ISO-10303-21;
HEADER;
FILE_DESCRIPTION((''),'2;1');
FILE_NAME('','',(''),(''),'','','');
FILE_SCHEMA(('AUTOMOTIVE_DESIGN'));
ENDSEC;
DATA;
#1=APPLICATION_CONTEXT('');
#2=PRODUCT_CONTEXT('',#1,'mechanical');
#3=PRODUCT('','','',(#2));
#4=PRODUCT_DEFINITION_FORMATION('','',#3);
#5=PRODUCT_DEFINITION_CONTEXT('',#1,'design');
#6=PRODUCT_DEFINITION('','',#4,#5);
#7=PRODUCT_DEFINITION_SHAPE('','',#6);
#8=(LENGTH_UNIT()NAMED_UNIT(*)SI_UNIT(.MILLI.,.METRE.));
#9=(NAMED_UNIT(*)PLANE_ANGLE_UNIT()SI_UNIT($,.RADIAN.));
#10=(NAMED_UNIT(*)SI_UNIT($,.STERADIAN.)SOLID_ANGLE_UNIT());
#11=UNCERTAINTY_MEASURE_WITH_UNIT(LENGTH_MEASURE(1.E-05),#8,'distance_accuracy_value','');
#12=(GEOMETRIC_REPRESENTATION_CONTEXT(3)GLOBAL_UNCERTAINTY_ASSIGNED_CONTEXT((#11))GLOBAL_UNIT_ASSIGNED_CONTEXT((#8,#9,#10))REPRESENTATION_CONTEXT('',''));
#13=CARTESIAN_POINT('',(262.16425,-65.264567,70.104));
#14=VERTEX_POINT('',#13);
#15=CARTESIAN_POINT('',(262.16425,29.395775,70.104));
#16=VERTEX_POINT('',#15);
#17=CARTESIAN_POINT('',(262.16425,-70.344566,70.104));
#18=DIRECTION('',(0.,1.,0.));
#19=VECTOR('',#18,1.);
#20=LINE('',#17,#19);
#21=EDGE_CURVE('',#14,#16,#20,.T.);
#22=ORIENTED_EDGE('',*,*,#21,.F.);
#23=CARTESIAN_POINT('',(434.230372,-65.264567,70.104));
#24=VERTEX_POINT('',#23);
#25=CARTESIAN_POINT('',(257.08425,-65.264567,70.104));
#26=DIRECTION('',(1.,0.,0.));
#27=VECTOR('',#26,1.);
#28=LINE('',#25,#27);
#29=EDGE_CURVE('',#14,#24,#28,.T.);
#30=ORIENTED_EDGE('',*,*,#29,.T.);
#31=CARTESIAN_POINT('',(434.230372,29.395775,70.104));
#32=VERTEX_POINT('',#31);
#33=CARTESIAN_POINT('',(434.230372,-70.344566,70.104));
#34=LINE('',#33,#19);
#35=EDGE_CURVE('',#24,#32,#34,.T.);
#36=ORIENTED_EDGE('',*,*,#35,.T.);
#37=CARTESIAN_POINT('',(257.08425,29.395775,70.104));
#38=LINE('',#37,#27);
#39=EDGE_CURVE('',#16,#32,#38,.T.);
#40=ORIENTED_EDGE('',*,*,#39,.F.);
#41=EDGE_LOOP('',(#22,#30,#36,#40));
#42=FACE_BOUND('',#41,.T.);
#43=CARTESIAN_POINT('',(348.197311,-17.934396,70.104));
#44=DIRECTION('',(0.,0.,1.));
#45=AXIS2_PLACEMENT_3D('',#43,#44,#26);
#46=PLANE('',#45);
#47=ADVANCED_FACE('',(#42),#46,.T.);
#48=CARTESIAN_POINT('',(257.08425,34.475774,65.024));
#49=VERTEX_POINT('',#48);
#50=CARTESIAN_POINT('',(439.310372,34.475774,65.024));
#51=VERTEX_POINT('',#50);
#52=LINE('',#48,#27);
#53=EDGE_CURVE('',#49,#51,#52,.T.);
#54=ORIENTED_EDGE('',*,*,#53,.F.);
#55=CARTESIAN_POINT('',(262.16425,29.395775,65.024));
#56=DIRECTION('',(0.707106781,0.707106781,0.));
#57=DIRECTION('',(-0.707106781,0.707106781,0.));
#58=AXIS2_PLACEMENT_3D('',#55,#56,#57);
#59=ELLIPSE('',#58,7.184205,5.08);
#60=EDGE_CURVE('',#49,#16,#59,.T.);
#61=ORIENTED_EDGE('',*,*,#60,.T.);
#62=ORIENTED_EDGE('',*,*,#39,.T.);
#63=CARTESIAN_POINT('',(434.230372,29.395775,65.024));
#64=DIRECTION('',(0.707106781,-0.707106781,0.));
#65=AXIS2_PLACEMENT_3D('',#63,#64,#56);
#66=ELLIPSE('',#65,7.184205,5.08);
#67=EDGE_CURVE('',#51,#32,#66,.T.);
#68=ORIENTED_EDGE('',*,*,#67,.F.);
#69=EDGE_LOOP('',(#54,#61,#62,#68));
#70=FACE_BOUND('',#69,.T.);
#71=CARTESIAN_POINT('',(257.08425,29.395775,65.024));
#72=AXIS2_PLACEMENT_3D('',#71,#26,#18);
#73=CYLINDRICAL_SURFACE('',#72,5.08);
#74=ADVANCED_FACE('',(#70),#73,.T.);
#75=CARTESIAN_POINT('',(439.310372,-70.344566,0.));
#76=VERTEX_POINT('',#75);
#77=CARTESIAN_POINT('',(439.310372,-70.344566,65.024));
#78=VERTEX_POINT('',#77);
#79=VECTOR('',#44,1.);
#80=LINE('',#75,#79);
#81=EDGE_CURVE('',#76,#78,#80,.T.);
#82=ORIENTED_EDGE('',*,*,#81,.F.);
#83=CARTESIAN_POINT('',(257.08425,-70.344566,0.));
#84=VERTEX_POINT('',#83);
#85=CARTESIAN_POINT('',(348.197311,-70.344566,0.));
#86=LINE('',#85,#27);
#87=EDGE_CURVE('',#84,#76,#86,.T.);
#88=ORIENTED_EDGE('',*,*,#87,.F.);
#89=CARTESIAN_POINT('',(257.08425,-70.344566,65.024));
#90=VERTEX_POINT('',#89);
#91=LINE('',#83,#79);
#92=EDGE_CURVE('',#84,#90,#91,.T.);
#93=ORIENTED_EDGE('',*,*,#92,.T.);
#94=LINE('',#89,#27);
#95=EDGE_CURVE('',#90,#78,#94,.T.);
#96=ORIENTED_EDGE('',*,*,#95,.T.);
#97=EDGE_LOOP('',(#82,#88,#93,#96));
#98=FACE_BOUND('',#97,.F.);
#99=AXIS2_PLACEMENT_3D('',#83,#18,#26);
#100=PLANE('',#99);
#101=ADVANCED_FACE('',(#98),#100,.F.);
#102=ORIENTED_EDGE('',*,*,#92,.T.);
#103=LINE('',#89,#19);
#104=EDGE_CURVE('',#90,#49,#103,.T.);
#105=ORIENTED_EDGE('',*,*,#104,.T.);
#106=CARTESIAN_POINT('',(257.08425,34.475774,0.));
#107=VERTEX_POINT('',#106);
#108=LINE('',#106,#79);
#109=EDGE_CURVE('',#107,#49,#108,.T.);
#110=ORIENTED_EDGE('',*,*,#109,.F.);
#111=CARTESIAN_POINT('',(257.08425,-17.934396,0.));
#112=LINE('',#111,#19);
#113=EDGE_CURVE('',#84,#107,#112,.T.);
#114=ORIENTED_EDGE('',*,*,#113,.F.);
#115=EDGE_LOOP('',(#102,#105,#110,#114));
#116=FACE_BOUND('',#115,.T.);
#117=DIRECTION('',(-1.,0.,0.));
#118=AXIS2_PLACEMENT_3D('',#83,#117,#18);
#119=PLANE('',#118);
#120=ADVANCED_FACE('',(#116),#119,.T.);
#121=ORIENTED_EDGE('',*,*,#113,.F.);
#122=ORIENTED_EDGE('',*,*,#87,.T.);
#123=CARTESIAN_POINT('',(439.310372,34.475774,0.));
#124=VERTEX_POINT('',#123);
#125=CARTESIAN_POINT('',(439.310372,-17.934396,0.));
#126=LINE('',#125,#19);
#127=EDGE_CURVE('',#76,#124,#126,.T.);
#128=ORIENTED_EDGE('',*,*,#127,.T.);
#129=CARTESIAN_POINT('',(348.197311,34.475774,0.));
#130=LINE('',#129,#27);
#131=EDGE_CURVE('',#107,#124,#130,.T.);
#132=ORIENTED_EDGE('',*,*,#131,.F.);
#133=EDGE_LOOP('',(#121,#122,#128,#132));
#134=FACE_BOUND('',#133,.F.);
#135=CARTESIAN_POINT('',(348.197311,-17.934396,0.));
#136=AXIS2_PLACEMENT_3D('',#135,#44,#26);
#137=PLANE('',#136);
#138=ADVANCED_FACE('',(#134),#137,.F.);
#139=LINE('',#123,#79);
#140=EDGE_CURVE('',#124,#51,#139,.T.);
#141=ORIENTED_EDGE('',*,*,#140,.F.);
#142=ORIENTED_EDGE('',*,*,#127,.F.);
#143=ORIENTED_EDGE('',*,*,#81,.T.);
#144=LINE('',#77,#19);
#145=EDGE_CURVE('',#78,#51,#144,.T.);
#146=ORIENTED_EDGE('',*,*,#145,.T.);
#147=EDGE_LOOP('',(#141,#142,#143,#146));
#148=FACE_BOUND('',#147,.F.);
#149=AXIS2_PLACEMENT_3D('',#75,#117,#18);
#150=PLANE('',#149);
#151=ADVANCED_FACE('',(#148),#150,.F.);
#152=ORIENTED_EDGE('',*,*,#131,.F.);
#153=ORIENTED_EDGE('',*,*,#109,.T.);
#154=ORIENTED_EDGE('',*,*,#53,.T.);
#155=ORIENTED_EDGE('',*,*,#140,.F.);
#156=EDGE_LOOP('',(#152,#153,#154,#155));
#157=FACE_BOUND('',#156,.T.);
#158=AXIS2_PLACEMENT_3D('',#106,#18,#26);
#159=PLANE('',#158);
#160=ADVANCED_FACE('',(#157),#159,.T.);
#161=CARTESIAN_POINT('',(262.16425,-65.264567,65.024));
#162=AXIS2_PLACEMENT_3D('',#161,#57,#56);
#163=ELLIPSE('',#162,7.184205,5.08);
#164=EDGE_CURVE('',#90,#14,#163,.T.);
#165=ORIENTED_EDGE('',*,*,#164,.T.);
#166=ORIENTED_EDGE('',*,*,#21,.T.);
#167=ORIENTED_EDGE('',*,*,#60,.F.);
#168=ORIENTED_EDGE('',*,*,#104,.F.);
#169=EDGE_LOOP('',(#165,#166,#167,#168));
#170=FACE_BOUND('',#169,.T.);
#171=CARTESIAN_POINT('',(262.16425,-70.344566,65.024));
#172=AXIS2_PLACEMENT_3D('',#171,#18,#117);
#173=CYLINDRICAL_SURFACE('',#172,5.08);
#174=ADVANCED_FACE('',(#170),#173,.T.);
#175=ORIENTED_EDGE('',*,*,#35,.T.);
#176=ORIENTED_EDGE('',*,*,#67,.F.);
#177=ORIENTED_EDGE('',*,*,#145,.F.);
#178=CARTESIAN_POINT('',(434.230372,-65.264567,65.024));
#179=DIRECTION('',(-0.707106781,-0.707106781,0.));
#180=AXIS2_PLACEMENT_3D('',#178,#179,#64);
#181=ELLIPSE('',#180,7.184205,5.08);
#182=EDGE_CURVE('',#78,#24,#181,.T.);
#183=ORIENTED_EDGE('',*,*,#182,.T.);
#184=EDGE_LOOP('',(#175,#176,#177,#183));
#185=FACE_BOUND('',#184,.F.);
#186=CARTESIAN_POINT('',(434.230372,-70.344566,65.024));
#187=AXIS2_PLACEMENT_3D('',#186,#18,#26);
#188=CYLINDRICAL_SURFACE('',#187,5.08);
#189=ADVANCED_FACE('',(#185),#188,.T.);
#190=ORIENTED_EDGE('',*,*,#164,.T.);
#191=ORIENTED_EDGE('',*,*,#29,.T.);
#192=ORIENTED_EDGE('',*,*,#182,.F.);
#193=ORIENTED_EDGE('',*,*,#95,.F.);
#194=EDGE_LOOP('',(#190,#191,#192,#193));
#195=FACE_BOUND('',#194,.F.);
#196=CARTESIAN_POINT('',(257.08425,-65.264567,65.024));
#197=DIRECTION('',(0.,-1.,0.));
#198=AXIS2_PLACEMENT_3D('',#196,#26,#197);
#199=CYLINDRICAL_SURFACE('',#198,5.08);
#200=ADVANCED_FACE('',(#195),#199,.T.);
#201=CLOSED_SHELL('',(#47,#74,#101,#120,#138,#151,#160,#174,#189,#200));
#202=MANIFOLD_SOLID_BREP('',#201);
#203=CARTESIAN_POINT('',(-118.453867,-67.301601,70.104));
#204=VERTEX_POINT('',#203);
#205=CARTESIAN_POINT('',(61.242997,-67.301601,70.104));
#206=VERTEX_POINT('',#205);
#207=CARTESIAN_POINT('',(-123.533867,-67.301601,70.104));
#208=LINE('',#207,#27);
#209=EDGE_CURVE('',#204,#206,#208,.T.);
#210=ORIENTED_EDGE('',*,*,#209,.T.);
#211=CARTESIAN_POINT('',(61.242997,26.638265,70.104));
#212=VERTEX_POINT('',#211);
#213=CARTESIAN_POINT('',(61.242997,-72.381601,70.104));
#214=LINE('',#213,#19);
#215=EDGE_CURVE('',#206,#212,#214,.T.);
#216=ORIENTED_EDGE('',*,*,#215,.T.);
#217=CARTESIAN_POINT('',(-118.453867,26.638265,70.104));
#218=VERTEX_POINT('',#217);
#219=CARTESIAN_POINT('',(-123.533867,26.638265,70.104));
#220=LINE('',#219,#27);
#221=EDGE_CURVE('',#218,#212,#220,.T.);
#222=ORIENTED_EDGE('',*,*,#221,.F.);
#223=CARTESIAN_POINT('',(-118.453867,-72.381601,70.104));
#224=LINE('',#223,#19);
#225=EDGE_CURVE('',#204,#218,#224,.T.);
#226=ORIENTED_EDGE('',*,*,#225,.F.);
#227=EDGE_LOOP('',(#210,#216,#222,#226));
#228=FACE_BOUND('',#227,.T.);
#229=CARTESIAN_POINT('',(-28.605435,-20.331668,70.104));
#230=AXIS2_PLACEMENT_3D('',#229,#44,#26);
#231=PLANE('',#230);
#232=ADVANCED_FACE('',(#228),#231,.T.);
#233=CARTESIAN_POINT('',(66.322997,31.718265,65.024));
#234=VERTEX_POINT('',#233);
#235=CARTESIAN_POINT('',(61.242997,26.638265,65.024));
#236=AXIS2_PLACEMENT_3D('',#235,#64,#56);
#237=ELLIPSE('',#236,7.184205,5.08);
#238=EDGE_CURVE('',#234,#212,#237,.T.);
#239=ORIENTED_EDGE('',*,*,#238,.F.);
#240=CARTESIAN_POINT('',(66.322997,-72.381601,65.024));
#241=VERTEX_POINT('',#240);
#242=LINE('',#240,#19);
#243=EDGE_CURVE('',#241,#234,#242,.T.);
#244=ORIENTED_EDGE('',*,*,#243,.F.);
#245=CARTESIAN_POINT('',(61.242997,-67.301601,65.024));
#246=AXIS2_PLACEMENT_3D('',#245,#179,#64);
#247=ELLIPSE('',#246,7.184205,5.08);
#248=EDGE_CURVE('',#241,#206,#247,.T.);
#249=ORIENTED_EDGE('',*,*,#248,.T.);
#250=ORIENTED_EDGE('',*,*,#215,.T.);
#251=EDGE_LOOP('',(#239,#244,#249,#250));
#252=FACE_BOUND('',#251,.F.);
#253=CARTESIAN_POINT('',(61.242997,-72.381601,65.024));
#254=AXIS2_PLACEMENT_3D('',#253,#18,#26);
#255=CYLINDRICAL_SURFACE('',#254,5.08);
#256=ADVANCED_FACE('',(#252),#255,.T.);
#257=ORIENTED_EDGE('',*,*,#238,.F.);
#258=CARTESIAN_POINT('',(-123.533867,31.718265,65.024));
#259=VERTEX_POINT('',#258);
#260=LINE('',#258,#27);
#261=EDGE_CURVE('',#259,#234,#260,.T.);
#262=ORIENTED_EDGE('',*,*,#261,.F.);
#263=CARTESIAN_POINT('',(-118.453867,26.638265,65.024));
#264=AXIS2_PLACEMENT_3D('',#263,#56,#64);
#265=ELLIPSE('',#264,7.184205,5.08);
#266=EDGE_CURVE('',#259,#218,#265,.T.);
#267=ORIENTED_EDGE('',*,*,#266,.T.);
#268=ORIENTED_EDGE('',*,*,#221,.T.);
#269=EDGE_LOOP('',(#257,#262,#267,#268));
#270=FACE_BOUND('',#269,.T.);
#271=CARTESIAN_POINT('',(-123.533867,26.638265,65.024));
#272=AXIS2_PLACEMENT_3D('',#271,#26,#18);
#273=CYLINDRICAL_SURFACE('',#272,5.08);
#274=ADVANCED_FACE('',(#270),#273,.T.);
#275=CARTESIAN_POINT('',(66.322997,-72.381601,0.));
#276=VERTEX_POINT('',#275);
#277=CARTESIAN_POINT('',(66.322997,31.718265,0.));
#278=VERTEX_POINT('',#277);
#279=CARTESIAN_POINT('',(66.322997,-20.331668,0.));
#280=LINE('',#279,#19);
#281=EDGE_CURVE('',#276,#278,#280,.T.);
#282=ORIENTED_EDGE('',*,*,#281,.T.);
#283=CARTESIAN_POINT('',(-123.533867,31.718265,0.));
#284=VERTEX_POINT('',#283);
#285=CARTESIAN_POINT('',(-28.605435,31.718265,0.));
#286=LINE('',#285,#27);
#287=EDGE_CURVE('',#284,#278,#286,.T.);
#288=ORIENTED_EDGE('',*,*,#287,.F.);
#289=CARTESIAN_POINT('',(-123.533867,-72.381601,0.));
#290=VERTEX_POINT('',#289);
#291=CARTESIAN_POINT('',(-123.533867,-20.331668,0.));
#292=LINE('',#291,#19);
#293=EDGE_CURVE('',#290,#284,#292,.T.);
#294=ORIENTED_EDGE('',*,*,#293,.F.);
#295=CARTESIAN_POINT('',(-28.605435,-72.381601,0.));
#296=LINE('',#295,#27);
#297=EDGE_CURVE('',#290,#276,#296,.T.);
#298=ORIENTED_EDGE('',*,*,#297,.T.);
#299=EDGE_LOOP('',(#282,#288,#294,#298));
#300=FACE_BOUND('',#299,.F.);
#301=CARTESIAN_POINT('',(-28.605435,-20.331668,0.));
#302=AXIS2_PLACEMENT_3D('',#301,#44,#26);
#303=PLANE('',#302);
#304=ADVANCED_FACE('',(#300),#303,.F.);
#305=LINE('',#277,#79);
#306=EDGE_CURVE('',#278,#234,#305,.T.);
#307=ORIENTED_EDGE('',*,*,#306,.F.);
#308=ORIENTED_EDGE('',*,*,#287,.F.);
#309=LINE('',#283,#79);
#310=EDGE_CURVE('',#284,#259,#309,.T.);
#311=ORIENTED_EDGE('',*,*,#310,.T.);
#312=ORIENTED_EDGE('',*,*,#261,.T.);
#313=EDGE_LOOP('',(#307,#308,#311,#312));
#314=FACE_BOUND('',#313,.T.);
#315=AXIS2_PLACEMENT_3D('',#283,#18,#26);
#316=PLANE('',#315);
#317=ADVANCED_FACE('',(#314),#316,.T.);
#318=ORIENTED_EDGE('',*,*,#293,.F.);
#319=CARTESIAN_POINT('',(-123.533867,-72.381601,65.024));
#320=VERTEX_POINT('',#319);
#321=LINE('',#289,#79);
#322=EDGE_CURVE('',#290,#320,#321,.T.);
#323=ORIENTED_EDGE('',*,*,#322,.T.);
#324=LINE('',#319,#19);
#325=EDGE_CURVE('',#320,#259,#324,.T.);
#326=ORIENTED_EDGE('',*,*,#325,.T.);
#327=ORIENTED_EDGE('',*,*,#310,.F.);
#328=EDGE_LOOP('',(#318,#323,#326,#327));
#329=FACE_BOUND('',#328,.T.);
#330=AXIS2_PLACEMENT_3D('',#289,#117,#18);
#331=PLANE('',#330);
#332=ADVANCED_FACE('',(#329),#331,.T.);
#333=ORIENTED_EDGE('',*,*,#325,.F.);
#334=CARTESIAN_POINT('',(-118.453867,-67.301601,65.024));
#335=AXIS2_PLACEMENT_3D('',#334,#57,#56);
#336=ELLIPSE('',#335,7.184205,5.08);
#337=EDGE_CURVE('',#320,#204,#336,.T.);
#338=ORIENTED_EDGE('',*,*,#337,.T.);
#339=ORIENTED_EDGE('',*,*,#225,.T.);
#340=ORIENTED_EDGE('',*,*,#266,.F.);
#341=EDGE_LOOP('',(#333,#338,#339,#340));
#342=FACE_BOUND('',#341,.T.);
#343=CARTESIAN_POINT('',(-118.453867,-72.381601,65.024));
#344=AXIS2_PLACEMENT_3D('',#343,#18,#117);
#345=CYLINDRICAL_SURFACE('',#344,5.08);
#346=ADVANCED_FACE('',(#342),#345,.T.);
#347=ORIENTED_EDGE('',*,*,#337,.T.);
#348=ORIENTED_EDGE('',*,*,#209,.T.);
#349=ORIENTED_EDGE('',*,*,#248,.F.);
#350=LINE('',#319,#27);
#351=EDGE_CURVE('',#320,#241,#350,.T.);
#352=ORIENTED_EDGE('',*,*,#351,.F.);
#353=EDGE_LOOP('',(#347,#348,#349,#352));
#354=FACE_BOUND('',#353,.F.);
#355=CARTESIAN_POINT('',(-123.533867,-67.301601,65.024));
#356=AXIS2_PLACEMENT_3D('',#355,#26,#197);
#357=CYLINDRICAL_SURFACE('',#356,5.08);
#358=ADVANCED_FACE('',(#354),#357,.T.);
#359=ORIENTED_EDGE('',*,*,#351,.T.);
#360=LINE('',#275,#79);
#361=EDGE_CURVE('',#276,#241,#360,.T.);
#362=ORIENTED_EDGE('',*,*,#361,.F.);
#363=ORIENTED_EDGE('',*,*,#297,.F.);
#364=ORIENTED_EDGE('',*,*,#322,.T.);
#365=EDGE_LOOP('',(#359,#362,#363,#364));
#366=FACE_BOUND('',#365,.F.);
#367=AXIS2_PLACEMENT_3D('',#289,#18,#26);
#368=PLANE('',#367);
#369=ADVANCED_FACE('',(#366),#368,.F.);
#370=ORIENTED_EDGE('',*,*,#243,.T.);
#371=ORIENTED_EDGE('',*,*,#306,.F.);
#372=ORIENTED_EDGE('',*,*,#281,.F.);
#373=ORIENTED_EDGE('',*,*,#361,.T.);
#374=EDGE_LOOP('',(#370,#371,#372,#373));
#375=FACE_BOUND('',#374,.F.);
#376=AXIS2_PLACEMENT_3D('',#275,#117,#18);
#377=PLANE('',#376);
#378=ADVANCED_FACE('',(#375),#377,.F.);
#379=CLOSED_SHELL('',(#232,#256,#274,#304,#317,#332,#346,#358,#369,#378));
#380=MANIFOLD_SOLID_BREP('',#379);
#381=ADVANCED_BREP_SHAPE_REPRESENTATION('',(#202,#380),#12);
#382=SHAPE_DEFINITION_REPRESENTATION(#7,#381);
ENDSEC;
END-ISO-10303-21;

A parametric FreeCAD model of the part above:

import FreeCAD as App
import Part
import Sketcher
from FreeCAD import Vector
Q = App.Units.Quantity


def edges_at(feature, points):
    """Names of the edges that pass closest to the given points."""
    edges = feature.Shape.Edges
    near = lambda p: min(range(len(edges)), key=lambda i: edges[i].distToShape(Part.Vertex(*p))[0])
    return sorted({f"Edge{near(p) + 1}" for p in points})


def add_polygon(sketch, points):
    """Adds a closed chain of lines whose ends are joined by coincident constraints."""
    first, n = sketch.GeometryCount, len(points)
    for a, b in zip(points, points[1:] + points[:1]):
        sketch.addGeometry(Part.LineSegment(App.Vector(*a, 0), App.Vector(*b, 0)), False)
    for i in range(n):
        sketch.addConstraint(Sketcher.Constraint("Coincident", first + i, 2, first + (i + 1) % n, 1))

doc = App.newDocument("Part")
body = doc.addObject("PartDesign::Body", "Body")

sketch1 = body.newObject("Sketcher::SketchObject", "Sketch")
sketch1.AttachmentSupport = (doc.getObject("XY_Plane"), [""])
sketch1.MapMode = "FlatFace"
add_polygon(sketch1, [(-124, 32), (-124, -72), (66, -72), (66, 32)])
sketch1.addConstraint([
    Sketcher.Constraint("Vertical", 0),
    Sketcher.Constraint("Horizontal", 1),
    Sketcher.Constraint("Vertical", 2),
    Sketcher.Constraint("Horizontal", 3),
    Sketcher.Constraint("DistanceY", 0, 2, -1, 1, 72.381601),
    Sketcher.Constraint("DistanceX", 1, 1, 1, 2, 189.856864),
    Sketcher.Constraint("DistanceY", 0, 2, 0, 1, 104.099866),
    Sketcher.Constraint("DistanceX", 0, 2, -1, 1, 123.533867),
])
pad1 = body.newObject("PartDesign::Pad", "Pad")
pad1.Profile = sketch1
pad1.Length = Q("2.76 in")
doc.recompute()

fillet = body.newObject("PartDesign::Fillet", "Fillet")
fillet.Base = (pad1, edges_at(pad1, [
    (-28.605, -72.382, 70.104),
    (66.323, -20.332, 70.104),
    (-28.605, 31.718, 70.104),
    (-123.534, -20.332, 70.104),
]))
fillet.Radius = Q("0.2 in")
body2 = doc.addObject("PartDesign::Body", "Body001")

sketch2 = body2.newObject("Sketcher::SketchObject", "Sketch001")
sketch2.AttachmentSupport = (doc.getObject("XY_Plane001"), [""])
sketch2.MapMode = "FlatFace"
add_polygon(sketch2, [(257, 34), (257, -70), (439, -70), (439, 34)])
sketch2.addConstraint([
    Sketcher.Constraint("Vertical", 0),
    Sketcher.Constraint("Horizontal", 1),
    Sketcher.Constraint("Vertical", 2),
    Sketcher.Constraint("Horizontal", 3),
    Sketcher.Constraint("DistanceX", 1, 1, 1, 2, 182.226122),
    Sketcher.Constraint("DistanceY", 0, 2, 0, 1, 104.820341),
    Sketcher.Constraint("DistanceX", -1, 1, 0, 2, 257.08425),
    Sketcher.Constraint("DistanceY", 0, 2, -1, 1, 70.344566),
])
pad2 = body2.newObject("PartDesign::Pad", "Pad001")
pad2.Profile = sketch2
pad2.Length = Q("2.76 in")
doc.recompute()

fillet2 = body2.newObject("PartDesign::Fillet", "Fillet001")
fillet2.Base = (pad2, edges_at(pad2, [
    (257.084, -17.934, 70.104),
    (348.197, -70.345, 70.104),
    (439.31, -17.934, 70.104),
    (348.197, 34.476, 70.104),
]))
fillet2.Radius = Q("0.2 in")

doc.recompute()
